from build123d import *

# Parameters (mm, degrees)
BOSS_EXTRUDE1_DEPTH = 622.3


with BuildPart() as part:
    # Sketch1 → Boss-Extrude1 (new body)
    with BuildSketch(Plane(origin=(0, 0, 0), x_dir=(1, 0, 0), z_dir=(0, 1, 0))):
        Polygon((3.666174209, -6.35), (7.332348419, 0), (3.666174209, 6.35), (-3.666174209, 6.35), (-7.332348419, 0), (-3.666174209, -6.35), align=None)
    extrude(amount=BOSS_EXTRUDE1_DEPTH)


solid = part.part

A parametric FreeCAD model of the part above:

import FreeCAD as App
import Part
import Sketcher
from FreeCAD import Vector
Q = App.Units.Quantity

doc = App.newDocument("Part")
body = doc.addObject("PartDesign::Body", "Body")

# Sketch on XZ plane
sketch1 = body.newObject("Sketcher::SketchObject", "Sketch")
sketch1.AttachmentSupport = (doc.getObject("XZ_Plane"), [""])
sketch1.MapMode = "FlatFace"
sketch1.addGeometry([
    Part.LineSegment(Vector(3.666174, 6.35, 0), Vector(7.332348, 0, 0)),  # 0
    Part.LineSegment(Vector(7.332348, 0, 0), Vector(3.666174, -6.35, 0)),  # 1
    Part.LineSegment(Vector(3.666174, -6.35, 0), Vector(-3.666174, -6.35, 0)),  # 2
    Part.LineSegment(Vector(-3.666174, -6.35, 0), Vector(-7.332348, 0, 0)),  # 3
    Part.LineSegment(Vector(-7.332348, 0, 0), Vector(-3.666174, 6.35, 0)),  # 4
    Part.LineSegment(Vector(-3.666174, 6.35, 0), Vector(3.666174, 6.35, 0)),  # 5
], False)
sketch1.addConstraint([
    Sketcher.Constraint("Coincident", 0, 2, 1, 1),
    Sketcher.Constraint("Coincident", 1, 2, 2, 1),
    Sketcher.Constraint("Coincident", 2, 2, 3, 1),
    Sketcher.Constraint("Coincident", 3, 2, 4, 1),
    Sketcher.Constraint("Coincident", 4, 2, 5, 1),
    Sketcher.Constraint("Coincident", 5, 2, 0, 1),
    Sketcher.Constraint("Horizontal", 2),
    Sketcher.Constraint("Horizontal", 5),
    Sketcher.Constraint("Symmetric", 0, 2, 3, 2, -1, 1),
    Sketcher.Constraint("Symmetric", 1, 2, 4, 2, -1, 1),
    Sketcher.Constraint("PointOnObject", 0, 2, -1),
    Sketcher.Constraint("Parallel", 0, 3),
    Sketcher.Constraint("Vertical", 2, 2, 4, 2),
    Sketcher.Constraint("Angle", 0, Q("-60 deg")),
    Sketcher.Constraint("DistanceY", 2, 2, 4, 2, Q("0.5 in")),
    Sketcher.Constraint("DistanceX", 2, 2, 2, 1, 7.332348),
])
pad1 = body.newObject("PartDesign::Pad", "Pad")
pad1.Profile = sketch1
pad1.Length = Q("24.5 in")
pad1.Reversed = True

doc.recompute()
